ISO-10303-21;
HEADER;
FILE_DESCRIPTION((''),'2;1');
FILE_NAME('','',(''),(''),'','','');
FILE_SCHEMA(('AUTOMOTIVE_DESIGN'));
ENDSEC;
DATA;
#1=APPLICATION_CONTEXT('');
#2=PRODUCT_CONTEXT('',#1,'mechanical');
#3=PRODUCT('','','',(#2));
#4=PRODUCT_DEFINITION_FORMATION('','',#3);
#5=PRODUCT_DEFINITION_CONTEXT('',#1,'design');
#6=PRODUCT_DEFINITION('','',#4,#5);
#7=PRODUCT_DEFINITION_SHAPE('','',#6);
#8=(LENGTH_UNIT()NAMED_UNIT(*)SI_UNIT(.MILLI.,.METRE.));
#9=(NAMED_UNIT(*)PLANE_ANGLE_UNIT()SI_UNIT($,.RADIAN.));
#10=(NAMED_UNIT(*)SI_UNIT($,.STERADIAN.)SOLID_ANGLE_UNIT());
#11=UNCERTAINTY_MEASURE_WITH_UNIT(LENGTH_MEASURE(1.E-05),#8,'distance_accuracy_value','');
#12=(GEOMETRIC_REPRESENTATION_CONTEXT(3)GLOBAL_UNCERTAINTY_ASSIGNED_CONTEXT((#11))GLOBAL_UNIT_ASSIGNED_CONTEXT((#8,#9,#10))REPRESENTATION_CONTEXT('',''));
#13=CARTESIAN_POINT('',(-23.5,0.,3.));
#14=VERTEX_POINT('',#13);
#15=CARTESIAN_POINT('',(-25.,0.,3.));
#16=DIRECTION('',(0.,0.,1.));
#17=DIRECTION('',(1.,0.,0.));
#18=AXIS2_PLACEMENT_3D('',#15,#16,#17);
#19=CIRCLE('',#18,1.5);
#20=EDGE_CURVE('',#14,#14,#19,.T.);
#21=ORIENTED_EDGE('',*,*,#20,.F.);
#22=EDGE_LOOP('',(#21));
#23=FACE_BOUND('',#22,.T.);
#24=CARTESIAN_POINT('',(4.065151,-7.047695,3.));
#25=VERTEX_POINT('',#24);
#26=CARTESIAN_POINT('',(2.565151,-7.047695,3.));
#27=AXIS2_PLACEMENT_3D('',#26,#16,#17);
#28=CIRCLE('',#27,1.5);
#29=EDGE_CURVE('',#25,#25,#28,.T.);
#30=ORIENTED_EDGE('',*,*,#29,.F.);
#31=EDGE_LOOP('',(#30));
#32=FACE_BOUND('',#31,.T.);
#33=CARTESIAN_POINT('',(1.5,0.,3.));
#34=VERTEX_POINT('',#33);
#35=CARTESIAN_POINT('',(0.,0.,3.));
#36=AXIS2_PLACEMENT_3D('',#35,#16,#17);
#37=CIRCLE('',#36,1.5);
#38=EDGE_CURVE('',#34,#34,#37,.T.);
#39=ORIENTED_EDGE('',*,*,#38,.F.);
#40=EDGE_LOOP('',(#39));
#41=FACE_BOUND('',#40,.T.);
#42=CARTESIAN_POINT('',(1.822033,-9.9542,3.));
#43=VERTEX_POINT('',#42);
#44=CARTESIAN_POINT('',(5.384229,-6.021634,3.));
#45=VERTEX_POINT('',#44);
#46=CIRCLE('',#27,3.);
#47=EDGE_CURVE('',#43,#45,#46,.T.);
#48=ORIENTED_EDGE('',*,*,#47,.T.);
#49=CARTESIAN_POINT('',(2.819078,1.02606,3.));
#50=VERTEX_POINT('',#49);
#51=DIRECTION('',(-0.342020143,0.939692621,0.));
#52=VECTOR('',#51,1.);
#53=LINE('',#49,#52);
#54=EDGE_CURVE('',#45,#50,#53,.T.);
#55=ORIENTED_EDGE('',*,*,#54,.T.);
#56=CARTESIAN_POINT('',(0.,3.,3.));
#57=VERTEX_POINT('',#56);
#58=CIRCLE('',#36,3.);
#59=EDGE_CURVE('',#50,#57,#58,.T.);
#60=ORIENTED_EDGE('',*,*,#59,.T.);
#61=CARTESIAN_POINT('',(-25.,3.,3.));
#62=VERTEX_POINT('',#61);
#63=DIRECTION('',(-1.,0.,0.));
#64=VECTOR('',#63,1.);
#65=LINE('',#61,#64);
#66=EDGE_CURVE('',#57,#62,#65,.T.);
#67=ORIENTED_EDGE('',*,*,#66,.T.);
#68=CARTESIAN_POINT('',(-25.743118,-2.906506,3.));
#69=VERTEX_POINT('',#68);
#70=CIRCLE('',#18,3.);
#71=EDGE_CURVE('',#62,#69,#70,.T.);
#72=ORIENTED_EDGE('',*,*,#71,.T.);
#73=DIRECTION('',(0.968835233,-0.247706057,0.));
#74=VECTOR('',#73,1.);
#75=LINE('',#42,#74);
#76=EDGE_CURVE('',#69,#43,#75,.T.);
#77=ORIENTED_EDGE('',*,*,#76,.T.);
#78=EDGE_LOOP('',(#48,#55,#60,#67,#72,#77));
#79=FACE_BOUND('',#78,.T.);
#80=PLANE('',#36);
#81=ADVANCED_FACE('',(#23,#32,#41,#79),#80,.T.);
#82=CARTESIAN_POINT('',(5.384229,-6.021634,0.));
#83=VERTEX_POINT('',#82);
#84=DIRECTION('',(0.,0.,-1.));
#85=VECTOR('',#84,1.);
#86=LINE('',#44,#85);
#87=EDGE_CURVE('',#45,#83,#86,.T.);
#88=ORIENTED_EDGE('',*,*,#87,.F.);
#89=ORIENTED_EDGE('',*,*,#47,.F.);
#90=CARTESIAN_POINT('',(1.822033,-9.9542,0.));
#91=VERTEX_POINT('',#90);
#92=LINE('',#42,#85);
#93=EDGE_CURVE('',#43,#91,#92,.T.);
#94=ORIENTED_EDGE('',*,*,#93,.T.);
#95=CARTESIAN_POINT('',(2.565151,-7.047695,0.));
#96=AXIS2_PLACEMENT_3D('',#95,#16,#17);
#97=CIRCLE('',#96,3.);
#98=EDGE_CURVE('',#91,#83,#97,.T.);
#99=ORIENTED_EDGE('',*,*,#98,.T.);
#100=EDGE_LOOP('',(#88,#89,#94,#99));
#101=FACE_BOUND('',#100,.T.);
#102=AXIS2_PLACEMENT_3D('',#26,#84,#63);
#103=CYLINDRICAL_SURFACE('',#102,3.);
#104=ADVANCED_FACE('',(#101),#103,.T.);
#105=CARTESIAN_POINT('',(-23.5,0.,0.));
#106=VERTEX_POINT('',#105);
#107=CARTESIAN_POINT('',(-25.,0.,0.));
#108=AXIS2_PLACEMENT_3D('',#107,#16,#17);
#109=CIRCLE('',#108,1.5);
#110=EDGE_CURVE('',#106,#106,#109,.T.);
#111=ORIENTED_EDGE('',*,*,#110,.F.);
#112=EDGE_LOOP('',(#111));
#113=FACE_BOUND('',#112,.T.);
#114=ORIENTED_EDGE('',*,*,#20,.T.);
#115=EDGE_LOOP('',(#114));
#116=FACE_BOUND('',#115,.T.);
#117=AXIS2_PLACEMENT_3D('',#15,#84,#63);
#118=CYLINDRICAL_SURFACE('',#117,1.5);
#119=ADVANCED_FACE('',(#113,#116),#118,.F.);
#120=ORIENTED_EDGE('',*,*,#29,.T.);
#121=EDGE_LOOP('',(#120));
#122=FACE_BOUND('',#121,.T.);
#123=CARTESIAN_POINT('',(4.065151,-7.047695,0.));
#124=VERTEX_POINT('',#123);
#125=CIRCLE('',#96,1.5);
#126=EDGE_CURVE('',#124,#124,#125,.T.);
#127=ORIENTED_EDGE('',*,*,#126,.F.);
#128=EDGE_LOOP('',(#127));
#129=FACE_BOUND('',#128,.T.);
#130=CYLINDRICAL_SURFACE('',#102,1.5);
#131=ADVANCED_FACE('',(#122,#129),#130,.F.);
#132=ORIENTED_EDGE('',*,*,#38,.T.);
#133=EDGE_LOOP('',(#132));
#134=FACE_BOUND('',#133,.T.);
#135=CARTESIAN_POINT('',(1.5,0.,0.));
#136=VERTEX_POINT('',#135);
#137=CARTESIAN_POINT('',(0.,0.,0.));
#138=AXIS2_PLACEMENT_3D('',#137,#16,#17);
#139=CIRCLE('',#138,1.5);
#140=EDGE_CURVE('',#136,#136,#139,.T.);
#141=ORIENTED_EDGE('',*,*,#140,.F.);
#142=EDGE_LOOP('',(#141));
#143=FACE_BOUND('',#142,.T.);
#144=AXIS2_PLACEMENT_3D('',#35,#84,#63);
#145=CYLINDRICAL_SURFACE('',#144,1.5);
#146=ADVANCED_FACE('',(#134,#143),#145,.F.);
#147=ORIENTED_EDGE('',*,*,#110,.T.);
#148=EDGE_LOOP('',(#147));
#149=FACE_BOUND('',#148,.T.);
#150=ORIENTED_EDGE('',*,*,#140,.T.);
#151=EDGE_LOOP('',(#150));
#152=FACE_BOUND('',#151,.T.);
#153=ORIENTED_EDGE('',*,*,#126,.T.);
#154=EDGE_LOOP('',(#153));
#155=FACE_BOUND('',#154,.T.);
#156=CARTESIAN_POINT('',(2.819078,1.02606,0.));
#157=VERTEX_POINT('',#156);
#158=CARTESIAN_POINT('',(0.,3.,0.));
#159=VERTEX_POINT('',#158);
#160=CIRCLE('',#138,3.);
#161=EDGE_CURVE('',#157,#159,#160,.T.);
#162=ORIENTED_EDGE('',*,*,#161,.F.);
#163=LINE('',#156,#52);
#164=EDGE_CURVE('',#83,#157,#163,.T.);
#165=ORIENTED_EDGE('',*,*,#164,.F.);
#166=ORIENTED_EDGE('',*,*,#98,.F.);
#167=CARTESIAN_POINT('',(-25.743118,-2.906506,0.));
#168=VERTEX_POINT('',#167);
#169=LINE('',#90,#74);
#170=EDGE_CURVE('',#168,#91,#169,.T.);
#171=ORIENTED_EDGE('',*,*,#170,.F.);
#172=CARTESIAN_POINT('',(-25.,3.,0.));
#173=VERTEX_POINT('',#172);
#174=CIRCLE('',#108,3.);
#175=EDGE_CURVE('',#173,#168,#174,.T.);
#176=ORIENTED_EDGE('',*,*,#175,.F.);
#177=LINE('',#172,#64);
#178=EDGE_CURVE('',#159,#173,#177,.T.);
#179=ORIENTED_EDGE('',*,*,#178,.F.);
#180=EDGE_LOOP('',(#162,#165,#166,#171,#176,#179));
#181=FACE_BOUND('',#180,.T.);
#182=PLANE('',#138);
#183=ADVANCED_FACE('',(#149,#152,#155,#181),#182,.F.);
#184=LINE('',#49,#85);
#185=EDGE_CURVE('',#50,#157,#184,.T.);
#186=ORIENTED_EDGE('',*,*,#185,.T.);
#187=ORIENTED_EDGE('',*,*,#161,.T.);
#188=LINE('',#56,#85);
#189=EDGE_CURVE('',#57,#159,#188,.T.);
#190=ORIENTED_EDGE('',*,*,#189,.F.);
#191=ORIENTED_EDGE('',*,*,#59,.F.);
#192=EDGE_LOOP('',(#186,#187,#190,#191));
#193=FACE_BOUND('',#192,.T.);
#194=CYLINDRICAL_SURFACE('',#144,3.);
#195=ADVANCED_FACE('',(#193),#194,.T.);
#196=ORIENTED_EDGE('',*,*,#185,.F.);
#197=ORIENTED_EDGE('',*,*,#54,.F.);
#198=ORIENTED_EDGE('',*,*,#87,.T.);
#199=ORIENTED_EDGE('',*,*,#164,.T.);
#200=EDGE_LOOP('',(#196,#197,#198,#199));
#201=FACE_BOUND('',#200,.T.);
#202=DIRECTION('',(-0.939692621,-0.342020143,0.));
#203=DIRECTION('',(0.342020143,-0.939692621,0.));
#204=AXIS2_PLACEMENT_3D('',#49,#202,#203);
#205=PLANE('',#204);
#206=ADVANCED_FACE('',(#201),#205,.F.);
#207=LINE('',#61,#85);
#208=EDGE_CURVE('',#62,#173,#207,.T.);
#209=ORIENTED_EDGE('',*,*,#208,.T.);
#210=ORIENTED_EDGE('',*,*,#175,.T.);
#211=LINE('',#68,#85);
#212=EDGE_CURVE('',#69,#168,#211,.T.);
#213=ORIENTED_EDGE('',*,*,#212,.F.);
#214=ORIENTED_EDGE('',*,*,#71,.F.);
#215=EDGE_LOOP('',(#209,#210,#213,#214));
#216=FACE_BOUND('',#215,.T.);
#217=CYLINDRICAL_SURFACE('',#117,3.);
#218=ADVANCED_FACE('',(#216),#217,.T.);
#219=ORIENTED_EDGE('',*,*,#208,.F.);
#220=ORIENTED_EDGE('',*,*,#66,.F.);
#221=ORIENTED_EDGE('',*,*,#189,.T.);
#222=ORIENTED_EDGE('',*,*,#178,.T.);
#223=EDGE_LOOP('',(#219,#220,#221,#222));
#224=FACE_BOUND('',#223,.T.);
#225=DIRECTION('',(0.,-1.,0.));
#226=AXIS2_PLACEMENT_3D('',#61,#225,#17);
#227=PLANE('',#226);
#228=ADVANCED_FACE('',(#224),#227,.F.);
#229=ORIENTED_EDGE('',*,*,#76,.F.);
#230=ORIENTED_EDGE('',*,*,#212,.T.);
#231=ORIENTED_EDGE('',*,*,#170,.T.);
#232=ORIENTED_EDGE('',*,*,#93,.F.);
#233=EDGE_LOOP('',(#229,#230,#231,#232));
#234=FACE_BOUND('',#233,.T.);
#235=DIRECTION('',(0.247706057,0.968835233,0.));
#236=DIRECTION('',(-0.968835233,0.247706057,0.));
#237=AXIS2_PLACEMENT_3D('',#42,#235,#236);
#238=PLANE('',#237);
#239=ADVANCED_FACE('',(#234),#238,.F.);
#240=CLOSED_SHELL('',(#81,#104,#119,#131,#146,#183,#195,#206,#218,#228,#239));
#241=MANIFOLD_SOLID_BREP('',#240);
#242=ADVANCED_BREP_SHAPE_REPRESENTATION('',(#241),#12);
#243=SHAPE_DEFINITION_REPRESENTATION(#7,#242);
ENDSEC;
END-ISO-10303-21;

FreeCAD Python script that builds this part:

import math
import FreeCAD as App
import Part
import Sketcher

V = App.Vector
Q = App.Units.Quantity

doc = App.newDocument("Part")
params = doc.addObject("Spreadsheet::Sheet", "Params")
for row, (alias, value) in enumerate([
    ("sketch1_diameter", "3 mm"),
    ("sketch1_radius", "3 mm"),
    ("sketch1_width", "25 mm"),
    ("sketch1_length", "7.5 mm"),
    ("pad1_length", "3 mm"),
], start=1):
    params.set(f"A{row}", alias)
    params.set(f"B{row}", "=" + value)
    params.setAlias(f"B{row}", alias)

body = doc.addObject("PartDesign::Body", "Body")

# Sketch on XY plane
sketch1 = body.newObject("Sketcher::SketchObject", "Sketch")
sketch1.AttachmentSupport = (doc.getObject("XY_Plane"), [""])
sketch1.MapMode = "FlatFace"
sketch1.addGeometry([
    Part.LineSegment(V(0, 3, 0), V(-25, 3, 0)),  # 0
    Part.ArcOfCircle(Part.Circle(V(-25, 0, 0), V(0, 0, 1), 3), math.radians(90), math.radians(256)),  # 1
    Part.LineSegment(V(-25.7, -2.9, 0), V(1.8, -10, 0)),  # 2
    Part.ArcOfCircle(Part.Circle(V(2.6, -7, 0), V(0, 0, 1), 3), math.radians(-104), math.radians(20)),  # 3
    Part.LineSegment(V(5.4, -6, 0), V(2.8, 1, 0)),  # 4
    Part.ArcOfCircle(Part.Circle(V(0, 0, 0), V(0, 0, 1), 3), math.radians(20), math.radians(90)),  # 5
    Part.Circle(V(2.6, -7, 0), V(0, 0, 1), 1.5),  # 6
    Part.Circle(V(0, 0, 0), V(0, 0, 1), 1.5),  # 7
    Part.Circle(V(-25, 0, 0), V(0, 0, 1), 1.5),  # 8
], False)
sketch1.addConstraint([
    Sketcher.Constraint("Tangent", 0, 2, 1, 1),
    Sketcher.Constraint("Tangent", 1, 2, 2, 1),
    Sketcher.Constraint("Tangent", 2, 2, 3, 1),
    Sketcher.Constraint("Tangent", 3, 2, 4, 1),
    Sketcher.Constraint("Tangent", 4, 2, 5, 1),
    Sketcher.Constraint("Tangent", 5, 2, 0, 1),
    Sketcher.Constraint("Horizontal", 0),
    Sketcher.Constraint("Coincident", 5, 3, -1, 1),
    Sketcher.Constraint("Coincident", 7, 3, -1, 1),
    Sketcher.Constraint("Coincident", 6, 3, 3, 3),
    Sketcher.Constraint("Coincident", 8, 3, 1, 3),
    Sketcher.Constraint("Equal", 1, 3),
    Sketcher.Constraint("Equal", 3, 5),
    Sketcher.Constraint("Equal", 6, 7),
    Sketcher.Constraint("Equal", 7, 8),
    Sketcher.Constraint("Diameter", 6, 3.0),
    Sketcher.Constraint("Radius", 1, 3.0),
    Sketcher.Constraint("DistanceX", 0, 2, 0, 1, 25.0),
    Sketcher.Constraint("Angle", 4, Q("110 deg")),
    Sketcher.Constraint("Distance", 4, 7.5),
])
sketch1.setExpression("Constraints[15]", "Params.sketch1_diameter")
sketch1.setExpression("Constraints[16]", "Params.sketch1_radius")
sketch1.setExpression("Constraints[17]", "Params.sketch1_width")
sketch1.setExpression("Constraints[19]", "Params.sketch1_length")
pad1 = body.newObject("PartDesign::Pad", "Pad")
pad1.Profile = sketch1
pad1.setExpression("Length", "Params.pad1_length")

doc.recompute()
